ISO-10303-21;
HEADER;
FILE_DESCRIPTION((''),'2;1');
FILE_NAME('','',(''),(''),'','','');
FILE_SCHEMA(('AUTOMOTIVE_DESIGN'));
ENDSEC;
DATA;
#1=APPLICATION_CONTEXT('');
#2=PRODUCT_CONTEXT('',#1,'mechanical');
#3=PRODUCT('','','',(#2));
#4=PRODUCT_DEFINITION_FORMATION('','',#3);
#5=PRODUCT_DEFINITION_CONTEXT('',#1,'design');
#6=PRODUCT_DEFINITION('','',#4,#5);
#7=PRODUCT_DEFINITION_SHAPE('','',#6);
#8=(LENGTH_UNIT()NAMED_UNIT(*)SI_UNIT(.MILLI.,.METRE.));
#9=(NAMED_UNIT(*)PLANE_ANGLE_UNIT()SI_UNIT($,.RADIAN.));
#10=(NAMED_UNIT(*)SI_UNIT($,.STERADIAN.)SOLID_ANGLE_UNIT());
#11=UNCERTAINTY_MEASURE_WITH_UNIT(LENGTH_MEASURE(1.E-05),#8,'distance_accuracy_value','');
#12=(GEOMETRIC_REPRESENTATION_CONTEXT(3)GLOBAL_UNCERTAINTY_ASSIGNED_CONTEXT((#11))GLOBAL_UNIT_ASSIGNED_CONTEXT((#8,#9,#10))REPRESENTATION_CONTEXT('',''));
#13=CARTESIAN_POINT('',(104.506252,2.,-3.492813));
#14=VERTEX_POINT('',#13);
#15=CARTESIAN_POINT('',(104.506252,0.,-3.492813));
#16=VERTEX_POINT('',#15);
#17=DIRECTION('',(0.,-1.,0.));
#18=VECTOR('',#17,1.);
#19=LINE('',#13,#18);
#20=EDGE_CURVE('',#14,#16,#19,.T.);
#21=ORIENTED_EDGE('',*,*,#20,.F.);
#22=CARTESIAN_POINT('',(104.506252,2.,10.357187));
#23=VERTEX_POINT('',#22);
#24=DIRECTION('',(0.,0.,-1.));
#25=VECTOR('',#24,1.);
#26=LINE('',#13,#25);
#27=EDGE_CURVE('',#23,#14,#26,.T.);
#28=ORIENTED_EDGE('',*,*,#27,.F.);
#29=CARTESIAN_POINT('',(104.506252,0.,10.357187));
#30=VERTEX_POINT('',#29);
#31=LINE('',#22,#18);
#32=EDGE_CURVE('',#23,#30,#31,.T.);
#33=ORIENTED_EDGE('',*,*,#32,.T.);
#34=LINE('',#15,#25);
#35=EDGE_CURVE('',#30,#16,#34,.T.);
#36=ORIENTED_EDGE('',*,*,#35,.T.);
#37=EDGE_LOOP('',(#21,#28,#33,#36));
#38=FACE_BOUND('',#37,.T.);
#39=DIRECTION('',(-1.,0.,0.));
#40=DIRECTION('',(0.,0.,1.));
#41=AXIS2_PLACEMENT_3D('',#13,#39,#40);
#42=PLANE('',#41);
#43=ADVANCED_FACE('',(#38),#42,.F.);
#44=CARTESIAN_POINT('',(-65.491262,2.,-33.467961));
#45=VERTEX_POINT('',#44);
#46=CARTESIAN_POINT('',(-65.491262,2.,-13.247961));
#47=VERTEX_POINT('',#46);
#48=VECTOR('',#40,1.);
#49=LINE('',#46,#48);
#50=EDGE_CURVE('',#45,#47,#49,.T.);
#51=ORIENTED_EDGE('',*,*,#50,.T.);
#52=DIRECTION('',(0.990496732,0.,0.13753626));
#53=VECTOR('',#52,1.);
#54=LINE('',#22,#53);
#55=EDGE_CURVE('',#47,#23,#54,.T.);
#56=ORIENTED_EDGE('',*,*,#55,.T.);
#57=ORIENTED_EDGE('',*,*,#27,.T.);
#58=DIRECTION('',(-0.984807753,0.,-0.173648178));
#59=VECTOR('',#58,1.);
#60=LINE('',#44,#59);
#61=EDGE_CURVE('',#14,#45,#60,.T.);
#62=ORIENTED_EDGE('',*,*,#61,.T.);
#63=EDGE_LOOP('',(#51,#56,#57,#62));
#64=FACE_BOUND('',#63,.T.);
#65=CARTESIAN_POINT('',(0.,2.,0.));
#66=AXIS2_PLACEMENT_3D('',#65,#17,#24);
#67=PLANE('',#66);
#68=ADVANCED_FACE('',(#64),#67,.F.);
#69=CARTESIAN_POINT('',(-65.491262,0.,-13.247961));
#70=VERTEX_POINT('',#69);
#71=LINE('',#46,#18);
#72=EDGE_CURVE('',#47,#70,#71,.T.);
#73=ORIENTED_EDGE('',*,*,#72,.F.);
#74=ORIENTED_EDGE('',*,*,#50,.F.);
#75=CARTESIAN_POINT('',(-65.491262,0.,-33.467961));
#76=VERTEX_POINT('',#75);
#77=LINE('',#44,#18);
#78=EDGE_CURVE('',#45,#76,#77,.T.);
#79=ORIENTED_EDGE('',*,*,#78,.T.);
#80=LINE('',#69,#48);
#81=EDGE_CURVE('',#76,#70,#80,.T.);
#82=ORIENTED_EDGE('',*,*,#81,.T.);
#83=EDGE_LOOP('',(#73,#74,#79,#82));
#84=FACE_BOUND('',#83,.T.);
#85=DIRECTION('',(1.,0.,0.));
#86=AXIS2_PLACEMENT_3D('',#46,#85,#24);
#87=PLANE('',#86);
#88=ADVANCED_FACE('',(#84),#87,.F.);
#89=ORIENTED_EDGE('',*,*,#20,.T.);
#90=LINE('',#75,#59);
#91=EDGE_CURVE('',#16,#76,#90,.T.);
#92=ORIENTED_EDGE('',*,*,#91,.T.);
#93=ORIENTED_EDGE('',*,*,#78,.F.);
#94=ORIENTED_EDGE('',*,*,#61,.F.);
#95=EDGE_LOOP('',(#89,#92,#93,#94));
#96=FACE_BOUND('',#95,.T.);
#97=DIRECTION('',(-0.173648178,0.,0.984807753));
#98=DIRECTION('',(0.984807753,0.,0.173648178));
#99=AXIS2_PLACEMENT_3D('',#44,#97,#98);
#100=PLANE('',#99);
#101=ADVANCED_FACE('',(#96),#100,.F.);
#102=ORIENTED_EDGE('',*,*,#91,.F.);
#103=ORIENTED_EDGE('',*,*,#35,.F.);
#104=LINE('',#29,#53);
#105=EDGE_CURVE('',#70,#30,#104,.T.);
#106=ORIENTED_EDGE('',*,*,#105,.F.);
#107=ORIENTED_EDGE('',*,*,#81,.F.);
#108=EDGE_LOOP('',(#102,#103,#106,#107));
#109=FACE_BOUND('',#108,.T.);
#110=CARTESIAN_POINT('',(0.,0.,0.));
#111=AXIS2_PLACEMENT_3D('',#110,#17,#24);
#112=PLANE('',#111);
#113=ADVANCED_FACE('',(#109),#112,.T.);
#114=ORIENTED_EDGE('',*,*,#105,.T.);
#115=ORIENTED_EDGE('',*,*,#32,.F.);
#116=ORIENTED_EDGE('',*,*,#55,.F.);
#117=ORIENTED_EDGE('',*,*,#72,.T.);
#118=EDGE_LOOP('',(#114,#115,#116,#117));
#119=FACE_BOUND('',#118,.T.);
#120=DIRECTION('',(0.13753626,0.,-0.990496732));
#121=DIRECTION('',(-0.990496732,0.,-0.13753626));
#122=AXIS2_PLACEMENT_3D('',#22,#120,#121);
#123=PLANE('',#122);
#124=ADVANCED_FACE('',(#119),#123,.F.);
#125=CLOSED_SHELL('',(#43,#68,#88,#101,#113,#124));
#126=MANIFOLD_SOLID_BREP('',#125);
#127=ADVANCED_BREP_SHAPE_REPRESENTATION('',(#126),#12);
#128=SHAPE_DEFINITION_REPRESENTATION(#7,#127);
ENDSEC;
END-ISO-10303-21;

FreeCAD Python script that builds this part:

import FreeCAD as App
import Part
import Sketcher
from FreeCAD import Vector
Q = App.Units.Quantity


def add_polygon(sketch, points):
    """Adds a closed chain of lines whose ends are joined by coincident constraints."""
    first, n = sketch.GeometryCount, len(points)
    for a, b in zip(points, points[1:] + points[:1]):
        sketch.addGeometry(Part.LineSegment(App.Vector(*a, 0), App.Vector(*b, 0)), False)
    for i in range(n):
        sketch.addConstraint(Sketcher.Constraint("Coincident", first + i, 2, first + (i + 1) % n, 1))

doc = App.newDocument("Part")
body = doc.addObject("PartDesign::Body", "Body")

sketch1 = body.newObject("Sketcher::SketchObject", "Sketch")
sketch1.AttachmentSupport = (doc.getObject("XZ_Plane"), [""])
sketch1.MapMode = "FlatFace"
add_polygon(sketch1, [(-65, -33), (-65, -13), (105, 10), (105, -3)])
sketch1.addConstraint([
    Sketcher.Constraint("Vertical", 0),
    Sketcher.Constraint("Vertical", 2),
    Sketcher.Constraint("Angle", 3, Q("-170 deg")),
    Sketcher.Constraint("DistanceY", 0, 1, 0, 2, Q("20.22 mm")),
    Sketcher.Constraint("DistanceY", 2, 2, 2, 1, Q("13.85 mm")),
    Sketcher.Constraint("Distance", 3, Q("172.62 mm")),
    Sketcher.Constraint("DistanceY", 0, 2, -1, 1, Q("13.247961 mm")),
    Sketcher.Constraint("DistanceX", 0, 2, -1, 1, Q("65.491262 mm")),
])
pad1 = body.newObject("PartDesign::Pad", "Pad")
pad1.Profile = sketch1
pad1.Length = 2
pad1.Reversed = True

doc.recompute()
